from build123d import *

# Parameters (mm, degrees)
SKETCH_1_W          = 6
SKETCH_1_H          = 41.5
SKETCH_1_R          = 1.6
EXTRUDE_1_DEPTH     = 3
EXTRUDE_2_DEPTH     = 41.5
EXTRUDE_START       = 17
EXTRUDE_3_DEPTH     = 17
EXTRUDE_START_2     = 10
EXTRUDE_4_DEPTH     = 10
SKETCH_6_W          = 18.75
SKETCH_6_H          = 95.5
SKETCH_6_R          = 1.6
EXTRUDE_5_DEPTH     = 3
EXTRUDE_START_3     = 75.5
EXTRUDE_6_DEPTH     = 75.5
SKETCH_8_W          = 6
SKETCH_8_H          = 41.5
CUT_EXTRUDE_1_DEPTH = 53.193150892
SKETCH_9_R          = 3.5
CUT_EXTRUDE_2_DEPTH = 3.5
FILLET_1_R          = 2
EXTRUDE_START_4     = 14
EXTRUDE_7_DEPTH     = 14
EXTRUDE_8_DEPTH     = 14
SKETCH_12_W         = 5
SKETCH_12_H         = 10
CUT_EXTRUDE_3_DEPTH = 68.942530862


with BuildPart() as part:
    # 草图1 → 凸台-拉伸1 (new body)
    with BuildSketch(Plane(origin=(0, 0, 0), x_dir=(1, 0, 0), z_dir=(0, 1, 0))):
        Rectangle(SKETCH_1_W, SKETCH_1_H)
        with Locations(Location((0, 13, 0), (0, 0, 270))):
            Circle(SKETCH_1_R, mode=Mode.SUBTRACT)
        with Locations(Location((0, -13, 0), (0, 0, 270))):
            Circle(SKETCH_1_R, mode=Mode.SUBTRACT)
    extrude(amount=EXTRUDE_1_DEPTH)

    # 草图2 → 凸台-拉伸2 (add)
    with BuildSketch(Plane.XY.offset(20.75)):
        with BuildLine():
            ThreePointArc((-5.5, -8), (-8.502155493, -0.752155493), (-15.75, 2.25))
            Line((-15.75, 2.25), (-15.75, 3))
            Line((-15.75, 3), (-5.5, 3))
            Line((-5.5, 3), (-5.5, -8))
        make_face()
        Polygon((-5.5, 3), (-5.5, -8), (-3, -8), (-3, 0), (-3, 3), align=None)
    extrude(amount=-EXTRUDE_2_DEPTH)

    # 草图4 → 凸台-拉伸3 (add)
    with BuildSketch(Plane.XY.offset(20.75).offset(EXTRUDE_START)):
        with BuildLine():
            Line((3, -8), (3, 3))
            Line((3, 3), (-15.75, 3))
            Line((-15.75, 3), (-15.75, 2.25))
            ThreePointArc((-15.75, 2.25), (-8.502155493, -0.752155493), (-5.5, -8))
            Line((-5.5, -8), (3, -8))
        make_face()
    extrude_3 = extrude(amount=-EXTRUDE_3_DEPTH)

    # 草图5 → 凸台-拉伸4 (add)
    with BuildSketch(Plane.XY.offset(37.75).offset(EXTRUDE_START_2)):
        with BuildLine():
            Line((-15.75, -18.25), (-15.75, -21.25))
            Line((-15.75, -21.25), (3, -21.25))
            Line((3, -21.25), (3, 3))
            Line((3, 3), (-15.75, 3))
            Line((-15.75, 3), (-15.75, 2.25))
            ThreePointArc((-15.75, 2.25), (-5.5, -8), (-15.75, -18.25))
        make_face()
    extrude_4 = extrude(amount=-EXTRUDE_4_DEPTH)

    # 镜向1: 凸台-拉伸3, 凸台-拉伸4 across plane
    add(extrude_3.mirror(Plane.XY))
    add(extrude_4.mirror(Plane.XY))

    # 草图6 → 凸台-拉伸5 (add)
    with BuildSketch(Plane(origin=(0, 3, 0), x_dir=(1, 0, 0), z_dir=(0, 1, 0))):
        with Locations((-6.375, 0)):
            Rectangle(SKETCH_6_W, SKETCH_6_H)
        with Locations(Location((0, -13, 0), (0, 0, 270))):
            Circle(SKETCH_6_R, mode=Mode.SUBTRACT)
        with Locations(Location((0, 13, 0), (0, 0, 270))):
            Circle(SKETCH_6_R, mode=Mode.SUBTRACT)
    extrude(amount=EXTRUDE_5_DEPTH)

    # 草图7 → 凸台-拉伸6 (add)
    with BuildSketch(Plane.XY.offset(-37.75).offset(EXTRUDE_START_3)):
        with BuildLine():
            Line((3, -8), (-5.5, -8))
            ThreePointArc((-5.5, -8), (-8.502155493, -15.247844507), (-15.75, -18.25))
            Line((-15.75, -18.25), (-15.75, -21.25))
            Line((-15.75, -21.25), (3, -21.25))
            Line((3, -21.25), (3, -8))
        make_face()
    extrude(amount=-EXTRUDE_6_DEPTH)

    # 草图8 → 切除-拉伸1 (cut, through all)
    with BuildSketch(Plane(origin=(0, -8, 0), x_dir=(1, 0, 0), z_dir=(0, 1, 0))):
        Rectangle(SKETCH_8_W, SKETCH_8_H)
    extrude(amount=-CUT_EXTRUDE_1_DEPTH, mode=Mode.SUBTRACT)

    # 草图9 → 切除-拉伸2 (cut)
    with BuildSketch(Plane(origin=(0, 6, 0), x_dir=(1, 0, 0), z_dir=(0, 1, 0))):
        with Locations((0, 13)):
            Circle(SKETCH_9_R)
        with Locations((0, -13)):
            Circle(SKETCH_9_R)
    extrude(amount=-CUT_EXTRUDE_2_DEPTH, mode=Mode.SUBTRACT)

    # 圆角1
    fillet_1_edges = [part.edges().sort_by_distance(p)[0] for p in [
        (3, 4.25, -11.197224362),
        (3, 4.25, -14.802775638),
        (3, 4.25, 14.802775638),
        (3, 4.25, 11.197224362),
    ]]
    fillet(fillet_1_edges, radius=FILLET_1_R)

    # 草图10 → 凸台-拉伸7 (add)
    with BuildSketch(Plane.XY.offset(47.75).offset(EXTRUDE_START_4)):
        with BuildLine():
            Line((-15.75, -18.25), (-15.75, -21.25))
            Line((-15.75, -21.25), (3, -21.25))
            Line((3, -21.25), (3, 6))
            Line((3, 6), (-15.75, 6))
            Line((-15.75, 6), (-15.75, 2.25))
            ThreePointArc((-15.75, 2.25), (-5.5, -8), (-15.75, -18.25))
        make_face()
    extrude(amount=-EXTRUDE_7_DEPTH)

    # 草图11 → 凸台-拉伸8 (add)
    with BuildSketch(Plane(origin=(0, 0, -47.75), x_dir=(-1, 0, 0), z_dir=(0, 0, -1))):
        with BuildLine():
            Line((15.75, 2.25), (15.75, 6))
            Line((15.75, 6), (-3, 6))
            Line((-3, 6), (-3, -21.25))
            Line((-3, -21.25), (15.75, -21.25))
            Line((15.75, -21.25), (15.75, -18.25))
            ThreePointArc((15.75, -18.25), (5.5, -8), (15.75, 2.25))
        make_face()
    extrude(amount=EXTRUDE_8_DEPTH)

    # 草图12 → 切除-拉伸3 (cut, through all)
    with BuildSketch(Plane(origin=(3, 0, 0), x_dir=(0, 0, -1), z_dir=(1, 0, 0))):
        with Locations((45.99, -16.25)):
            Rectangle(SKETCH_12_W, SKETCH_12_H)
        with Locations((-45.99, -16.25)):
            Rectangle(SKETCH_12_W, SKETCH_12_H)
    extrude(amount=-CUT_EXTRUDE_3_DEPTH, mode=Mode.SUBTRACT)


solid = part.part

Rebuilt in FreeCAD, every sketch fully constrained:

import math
import FreeCAD as App
import Part
import Sketcher
from FreeCAD import Vector
Q = App.Units.Quantity


def edges_at(feature, points):
    """Names of the edges that pass closest to the given points."""
    edges = feature.Shape.Edges
    near = lambda p: min(range(len(edges)), key=lambda i: edges[i].distToShape(Part.Vertex(*p))[0])
    return sorted({f"Edge{near(p) + 1}" for p in points})


def add_polygon(sketch, points):
    """Adds a closed chain of lines whose ends are joined by coincident constraints."""
    first, n = sketch.GeometryCount, len(points)
    for a, b in zip(points, points[1:] + points[:1]):
        sketch.addGeometry(Part.LineSegment(App.Vector(*a, 0), App.Vector(*b, 0)), False)
    for i in range(n):
        sketch.addConstraint(Sketcher.Constraint("Coincident", first + i, 2, first + (i + 1) % n, 1))

doc = App.newDocument("Part")
body = doc.addObject("PartDesign::Body", "Body")

# Sketch on XZ plane
sketch1 = body.newObject("Sketcher::SketchObject", "Sketch")
sketch1.AttachmentSupport = (doc.getObject("XZ_Plane"), [""])
sketch1.MapMode = "FlatFace"
add_polygon(sketch1, [(-3, -20.75), (-3, 20.75), (3, 20.75), (3, -20.75)])  # lines 0-3
sketch1.addGeometry(Part.Circle(Vector(0, 13, 0), Vector(0, 0, 1), 1.6), False)  # 4
sketch1.addGeometry(Part.Circle(Vector(0, -13, 0), Vector(0, 0, 1), 1.6), False)  # 5
sketch1.addConstraint(Sketcher.Constraint("Vertical", 0))
sketch1.addConstraint(Sketcher.Constraint("Horizontal", 1))
sketch1.addConstraint(Sketcher.Constraint("Vertical", 2))
sketch1.addConstraint(Sketcher.Constraint("Horizontal", 3))
sketch1.addConstraint(Sketcher.Constraint("Equal", 4, 5))
sketch1.addConstraint(Sketcher.Constraint("Symmetric", 4, 3, 5, 3, -1, 1))
sketch1.addConstraint(Sketcher.Constraint("Symmetric", 0, 2, 2, 2, -1, 1))
sketch1.addConstraint(Sketcher.Constraint("PointOnObject", 4, 3, -2))
sketch1.addConstraint(Sketcher.Constraint("Diameter", 4, Q("3.2 mm")))
sketch1.addConstraint(Sketcher.Constraint("DistanceX", 1, 1, 1, 2, Q("6 mm")))
sketch1.addConstraint(Sketcher.Constraint("DistanceY", 0, 1, 0, 2, Q("41.5 mm")))
sketch1.addConstraint(Sketcher.Constraint("DistanceY", -1, 1, 4, 3, Q("13 mm")))
pad1 = body.newObject("PartDesign::Pad", "Pad")
pad1.Profile = sketch1
pad1.Length = 3
pad1.Reversed = True

# Sketch on XY plane
sketch2 = body.newObject("Sketcher::SketchObject", "Sketch001")
sketch2.AttachmentSupport = (doc.getObject("XY_Plane"), [""])
sketch2.MapMode = "FlatFace"
sketch2.AttachmentOffset = App.Placement(Vector(0, 0, 20.75), App.Rotation())
sketch2.addGeometry(Part.ArcOfCircle(Part.Circle(Vector(-15.75, -8, 0), Vector(0, 0, 1), 10.25), math.radians(0), math.radians(90)), False)
sketch2.addGeometry(Part.LineSegment(Vector(-5.5, -8, 0), Vector(-3, -8, 0)), False)
sketch2.addGeometry(Part.LineSegment(Vector(-3, -8, 0), Vector(-3, 3, 0)), False)
sketch2.addGeometry(Part.LineSegment(Vector(-3, 3, 0), Vector(-15.75, 3, 0)), False)
sketch2.addGeometry(Part.LineSegment(Vector(-15.75, 3, 0), Vector(-15.75, 2.25, 0)), False)
sketch2.addConstraint(Sketcher.Constraint("Coincident", 0, 1, 1, 1))
sketch2.addConstraint(Sketcher.Constraint("Coincident", 1, 2, 2, 1))
sketch2.addConstraint(Sketcher.Constraint("Coincident", 2, 2, 3, 1))
sketch2.addConstraint(Sketcher.Constraint("Coincident", 3, 2, 4, 1))
sketch2.addConstraint(Sketcher.Constraint("Coincident", 4, 2, 0, 2))
sketch2.addConstraint(Sketcher.Constraint("Horizontal", 1))
sketch2.addConstraint(Sketcher.Constraint("Vertical", 2))
sketch2.addConstraint(Sketcher.Constraint("Horizontal", 3))
sketch2.addConstraint(Sketcher.Constraint("Vertical", 4))
sketch2.addConstraint(Sketcher.Constraint("Vertical", 0, 3, 3, 2))
sketch2.addConstraint(Sketcher.Constraint("DistanceY", 2, 1, 2, 2, Q("11 mm")))
sketch2.addConstraint(Sketcher.Constraint("Radius", 0, Q("10.25 mm")))
sketch2.addConstraint(Sketcher.Constraint("DistanceX", 1, 1, 1, 2, Q("2.5 mm")))
sketch2.addConstraint(Sketcher.Constraint("DistanceY", 0, 3, -1, 1, Q("8 mm")))
sketch2.addConstraint(Sketcher.Constraint("DistanceY", 0, 1, -1, 1, Q("8 mm")))
sketch2.addConstraint(Sketcher.Constraint("DistanceX", 1, 2, -1, 1, Q("3 mm")))
pad2 = body.newObject("PartDesign::Pad", "Pad001")
pad2.Profile = sketch2
pad2.Length = 41.5
pad2.Reversed = True

# Sketch on XY plane
sketch3 = body.newObject("Sketcher::SketchObject", "Sketch002")
sketch3.AttachmentSupport = (doc.getObject("XY_Plane"), [""])
sketch3.MapMode = "FlatFace"
sketch3.AttachmentOffset = App.Placement(Vector(0, 0, 37.75), App.Rotation())
sketch3.addGeometry(Part.LineSegment(Vector(3, -8, 0), Vector(3, 3, 0)), False)
sketch3.addGeometry(Part.LineSegment(Vector(3, 3, 0), Vector(-15.75, 3, 0)), False)
sketch3.addGeometry(Part.LineSegment(Vector(-15.75, 3, 0), Vector(-15.75, 2.25, 0)), False)
sketch3.addGeometry(Part.ArcOfCircle(Part.Circle(Vector(-15.75, -8, 0), Vector(0, 0, 1), 10.25), math.radians(0), math.radians(90)), False)
sketch3.addGeometry(Part.LineSegment(Vector(-5.5, -8, 0), Vector(3, -8, 0)), False)
sketch3.addConstraint(Sketcher.Constraint("Coincident", 0, 2, 1, 1))
sketch3.addConstraint(Sketcher.Constraint("Coincident", 1, 2, 2, 1))
sketch3.addConstraint(Sketcher.Constraint("Coincident", 2, 2, 3, 2))
sketch3.addConstraint(Sketcher.Constraint("Coincident", 3, 1, 4, 1))
sketch3.addConstraint(Sketcher.Constraint("Coincident", 4, 2, 0, 1))
sketch3.addConstraint(Sketcher.Constraint("Vertical", 0))
sketch3.addConstraint(Sketcher.Constraint("Horizontal", 1))
sketch3.addConstraint(Sketcher.Constraint("Vertical", 2))
sketch3.addConstraint(Sketcher.Constraint("Horizontal", 4))
sketch3.addConstraint(Sketcher.Constraint("Vertical", 3, 3, 1, 2))
sketch3.addConstraint(Sketcher.Constraint("DistanceY", 0, 1, 0, 2, Q("11 mm")))
sketch3.addConstraint(Sketcher.Constraint("Radius", 3, Q("10.25 mm")))
sketch3.addConstraint(Sketcher.Constraint("DistanceX", 4, 1, 4, 2, Q("8.5 mm")))
sketch3.addConstraint(Sketcher.Constraint("DistanceY", 3, 3, -1, 1, Q("8 mm")))
sketch3.addConstraint(Sketcher.Constraint("DistanceX", -1, 1, 0, 2, Q("3 mm")))
sketch3.addConstraint(Sketcher.Constraint("DistanceY", -1, 1, 0, 2, Q("3 mm")))
pad3 = body.newObject("PartDesign::Pad", "Pad002")
pad3.Profile = sketch3
pad3.Length = 17
pad3.Reversed = True

# Sketch on XY plane
sketch4 = body.newObject("Sketcher::SketchObject", "Sketch003")
sketch4.AttachmentSupport = (doc.getObject("XY_Plane"), [""])
sketch4.MapMode = "FlatFace"
sketch4.AttachmentOffset = App.Placement(Vector(0, 0, 47.75), App.Rotation())
sketch4.addGeometry(Part.LineSegment(Vector(-15.75, -18.25, 0), Vector(-15.75, -21.25, 0)), False)
sketch4.addGeometry(Part.LineSegment(Vector(-15.75, -21.25, 0), Vector(3, -21.25, 0)), False)
sketch4.addGeometry(Part.LineSegment(Vector(3, -21.25, 0), Vector(3, 3, 0)), False)
sketch4.addGeometry(Part.LineSegment(Vector(3, 3, 0), Vector(-15.75, 3, 0)), False)
sketch4.addGeometry(Part.LineSegment(Vector(-15.75, 3, 0), Vector(-15.75, 2.25, 0)), False)
sketch4.addGeometry(Part.ArcOfCircle(Part.Circle(Vector(-15.75, -8, 0), Vector(0, 0, 1), 10.25), math.radians(-90), math.radians(90)), False)
sketch4.addConstraint(Sketcher.Constraint("Coincident", 0, 2, 1, 1))
sketch4.addConstraint(Sketcher.Constraint("Coincident", 1, 2, 2, 1))
sketch4.addConstraint(Sketcher.Constraint("Coincident", 2, 2, 3, 1))
sketch4.addConstraint(Sketcher.Constraint("Coincident", 3, 2, 4, 1))
sketch4.addConstraint(Sketcher.Constraint("Coincident", 4, 2, 5, 2))
sketch4.addConstraint(Sketcher.Constraint("Coincident", 5, 1, 0, 1))
sketch4.addConstraint(Sketcher.Constraint("Vertical", 0))
sketch4.addConstraint(Sketcher.Constraint("Horizontal", 1))
sketch4.addConstraint(Sketcher.Constraint("Vertical", 2))
sketch4.addConstraint(Sketcher.Constraint("Horizontal", 3))
sketch4.addConstraint(Sketcher.Constraint("Vertical", 4))
sketch4.addConstraint(Sketcher.Constraint("Vertical", 5, 3, 0, 2))
sketch4.addConstraint(Sketcher.Constraint("Vertical", 0, 2, 3, 2))
sketch4.addConstraint(Sketcher.Constraint("DistanceY", 0, 2, 0, 1, Q("3 mm")))
sketch4.addConstraint(Sketcher.Constraint("Radius", 5, Q("10.25 mm")))
sketch4.addConstraint(Sketcher.Constraint("DistanceY", 5, 3, -1, 1, Q("8 mm")))
sketch4.addConstraint(Sketcher.Constraint("DistanceX", -1, 1, 1, 2, Q("3 mm")))
sketch4.addConstraint(Sketcher.Constraint("DistanceY", -1, 1, 2, 2, Q("3 mm")))
sketch4.addConstraint(Sketcher.Constraint("DistanceX", 1, 1, 1, 2, Q("18.75 mm")))
pad4 = body.newObject("PartDesign::Pad", "Pad003")
pad4.Profile = sketch4
pad4.Length = 10
pad4.Reversed = True
doc.recompute()

mirrored = body.newObject("PartDesign::Mirrored", "Mirrored")
mirrored.Originals = [pad3, pad4]
mirrored.MirrorPlane = (doc.getObject("XY_Plane"), [""])
body.Tip = mirrored

# Sketch on XZ plane
sketch5 = body.newObject("Sketcher::SketchObject", "Sketch004")
sketch5.AttachmentSupport = (doc.getObject("XZ_Plane"), [""])
sketch5.MapMode = "FlatFace"
sketch5.AttachmentOffset = App.Placement(Vector(0, 0, -3), App.Rotation())
add_polygon(sketch5, [(-15.75, -47.75), (-15.75, 47.75), (3, 47.75), (3, -47.75)])  # lines 0-3
sketch5.addGeometry(Part.Circle(Vector(0, 13, 0), Vector(0, 0, 1), 1.6), False)  # 4
sketch5.addGeometry(Part.Circle(Vector(0, -13, 0), Vector(0, 0, 1), 1.6), False)  # 5
sketch5.addConstraint(Sketcher.Constraint("Vertical", 0))
sketch5.addConstraint(Sketcher.Constraint("Horizontal", 1))
sketch5.addConstraint(Sketcher.Constraint("Vertical", 2))
sketch5.addConstraint(Sketcher.Constraint("Horizontal", 3))
sketch5.addConstraint(Sketcher.Constraint("Equal", 4, 5))
sketch5.addConstraint(Sketcher.Constraint("Symmetric", 4, 3, 5, 3, -1, 1))
sketch5.addConstraint(Sketcher.Constraint("PointOnObject", 4, 3, -2))
sketch5.addConstraint(Sketcher.Constraint("Diameter", 4, Q("3.2 mm")))
sketch5.addConstraint(Sketcher.Constraint("DistanceY", 0, 1, 0, 2, Q("95.5 mm")))
sketch5.addConstraint(Sketcher.Constraint("DistanceY", -1, 1, 4, 3, Q("13 mm")))
sketch5.addConstraint(Sketcher.Constraint("DistanceX", -1, 1, 1, 2, Q("3 mm")))
sketch5.addConstraint(Sketcher.Constraint("DistanceX", 1, 1, 1, 2, Q("18.75 mm")))
sketch5.addConstraint(Sketcher.Constraint("DistanceY", -1, 1, 0, 2, Q("47.75 mm")))
pad5 = body.newObject("PartDesign::Pad", "Pad004")
pad5.Profile = sketch5
pad5.Length = 3
pad5.Reversed = True

# Sketch on XY plane
sketch6 = body.newObject("Sketcher::SketchObject", "Sketch005")
sketch6.AttachmentSupport = (doc.getObject("XY_Plane"), [""])
sketch6.MapMode = "FlatFace"
sketch6.AttachmentOffset = App.Placement(Vector(0, 0, 37.75), App.Rotation())
sketch6.addGeometry(Part.LineSegment(Vector(3, -8, 0), Vector(-5.5, -8, 0)), False)
sketch6.addGeometry(Part.ArcOfCircle(Part.Circle(Vector(-15.75, -8, 0), Vector(0, 0, 1), 10.25), math.radians(-90), math.radians(0)), False)
sketch6.addGeometry(Part.LineSegment(Vector(-15.75, -18.25, 0), Vector(-15.75, -21.25, 0)), False)
sketch6.addGeometry(Part.LineSegment(Vector(-15.75, -21.25, 0), Vector(3, -21.25, 0)), False)
sketch6.addGeometry(Part.LineSegment(Vector(3, -21.25, 0), Vector(3, -8, 0)), False)
sketch6.addConstraint(Sketcher.Constraint("Coincident", 0, 2, 1, 2))
sketch6.addConstraint(Sketcher.Constraint("Coincident", 1, 1, 2, 1))
sketch6.addConstraint(Sketcher.Constraint("Coincident", 2, 2, 3, 1))
sketch6.addConstraint(Sketcher.Constraint("Coincident", 3, 2, 4, 1))
sketch6.addConstraint(Sketcher.Constraint("Coincident", 4, 2, 0, 1))
sketch6.addConstraint(Sketcher.Constraint("Horizontal", 0))
sketch6.addConstraint(Sketcher.Constraint("Vertical", 2))
sketch6.addConstraint(Sketcher.Constraint("Horizontal", 3))
sketch6.addConstraint(Sketcher.Constraint("Vertical", 4))
sketch6.addConstraint(Sketcher.Constraint("Horizontal", 1, 3, 0, 2))
sketch6.addConstraint(Sketcher.Constraint("DistanceY", 2, 2, 2, 1, Q("3 mm")))
sketch6.addConstraint(Sketcher.Constraint("Radius", 1, Q("10.25 mm")))
sketch6.addConstraint(Sketcher.Constraint("DistanceX", 0, 2, 0, 1, Q("8.5 mm")))
sketch6.addConstraint(Sketcher.Constraint("DistanceY", 1, 3, -1, 1, Q("8 mm")))
sketch6.addConstraint(Sketcher.Constraint("DistanceX", -1, 1, 3, 2, Q("3 mm")))
sketch6.addConstraint(Sketcher.Constraint("DistanceX", 3, 1, 3, 2, Q("18.75 mm")))
pad6 = body.newObject("PartDesign::Pad", "Pad005")
pad6.Profile = sketch6
pad6.Length = 75.5
pad6.Reversed = True

# Sketch on XZ plane
sketch7 = body.newObject("Sketcher::SketchObject", "Sketch006")
sketch7.AttachmentSupport = (doc.getObject("XZ_Plane"), [""])
sketch7.MapMode = "FlatFace"
sketch7.AttachmentOffset = App.Placement(Vector(0, 0, 8), App.Rotation())
add_polygon(sketch7, [(-3, -20.75), (-3, 20.75), (3, 20.75), (3, -20.75)])  # lines 0-3
sketch7.addConstraint(Sketcher.Constraint("Vertical", 0))
sketch7.addConstraint(Sketcher.Constraint("Horizontal", 1))
sketch7.addConstraint(Sketcher.Constraint("Vertical", 2))
sketch7.addConstraint(Sketcher.Constraint("Horizontal", 3))
sketch7.addConstraint(Sketcher.Constraint("Symmetric", 0, 2, 2, 2, -1, 1))
sketch7.addConstraint(Sketcher.Constraint("DistanceX", 1, 1, 1, 2, Q("6 mm")))
sketch7.addConstraint(Sketcher.Constraint("DistanceY", 0, 1, 0, 2, Q("41.5 mm")))
pocket1 = body.newObject("PartDesign::Pocket", "Pocket")
pocket1.Profile = sketch7
pocket1.Type = "ThroughAll"
pocket1.Reversed = True

# Sketch on XZ plane
sketch8 = body.newObject("Sketcher::SketchObject", "Sketch007")
sketch8.AttachmentSupport = (doc.getObject("XZ_Plane"), [""])
sketch8.MapMode = "FlatFace"
sketch8.AttachmentOffset = App.Placement(Vector(0, 0, -6), App.Rotation())
sketch8.addGeometry(Part.Circle(Vector(0, -13, 0), Vector(0, 0, 1), 3.5), False)
sketch8.addGeometry(Part.Circle(Vector(0, 13, 0), Vector(0, 0, 1), 3.5), False)
sketch8.addConstraint(Sketcher.Constraint("Equal", 0, 1))
sketch8.addConstraint(Sketcher.Constraint("Symmetric", 0, 3, 1, 3, -1, 1))
sketch8.addConstraint(Sketcher.Constraint("PointOnObject", 0, 3, -2))
sketch8.addConstraint(Sketcher.Constraint("Diameter", 0, Q("7 mm")))
sketch8.addConstraint(Sketcher.Constraint("DistanceY", 0, 3, -1, 1, Q("13 mm")))
pocket2 = body.newObject("PartDesign::Pocket", "Pocket001")
pocket2.Profile = sketch8
pocket2.Length = 3.5
pocket2.Reversed = True
doc.recompute()

fillet = body.newObject("PartDesign::Fillet", "Fillet")
fillet.Base = (pocket2, edges_at(pocket2, [
    (3, 4.25, -11.197),
    (3, 4.25, -14.803),
    (3, 4.25, 14.803),
    (3, 4.25, 11.197),
]))
fillet.Radius = 2

# Sketch on XY plane
sketch9 = body.newObject("Sketcher::SketchObject", "Sketch008")
sketch9.AttachmentSupport = (doc.getObject("XY_Plane"), [""])
sketch9.MapMode = "FlatFace"
sketch9.AttachmentOffset = App.Placement(Vector(0, 0, 61.75), App.Rotation())
sketch9.addGeometry(Part.LineSegment(Vector(-15.75, -18.25, 0), Vector(-15.75, -21.25, 0)), False)
sketch9.addGeometry(Part.LineSegment(Vector(-15.75, -21.25, 0), Vector(3, -21.25, 0)), False)
sketch9.addGeometry(Part.LineSegment(Vector(3, -21.25, 0), Vector(3, 6, 0)), False)
sketch9.addGeometry(Part.LineSegment(Vector(3, 6, 0), Vector(-15.75, 6, 0)), False)
sketch9.addGeometry(Part.LineSegment(Vector(-15.75, 6, 0), Vector(-15.75, 2.25, 0)), False)
sketch9.addGeometry(Part.ArcOfCircle(Part.Circle(Vector(-15.75, -8, 0), Vector(0, 0, 1), 10.25), math.radians(-90), math.radians(90)), False)
sketch9.addConstraint(Sketcher.Constraint("Coincident", 0, 2, 1, 1))
sketch9.addConstraint(Sketcher.Constraint("Coincident", 1, 2, 2, 1))
sketch9.addConstraint(Sketcher.Constraint("Coincident", 2, 2, 3, 1))
sketch9.addConstraint(Sketcher.Constraint("Coincident", 3, 2, 4, 1))
sketch9.addConstraint(Sketcher.Constraint("Coincident", 4, 2, 5, 2))
sketch9.addConstraint(Sketcher.Constraint("Coincident", 5, 1, 0, 1))
sketch9.addConstraint(Sketcher.Constraint("Vertical", 0))
sketch9.addConstraint(Sketcher.Constraint("Horizontal", 1))
sketch9.addConstraint(Sketcher.Constraint("Vertical", 2))
sketch9.addConstraint(Sketcher.Constraint("Horizontal", 3))
sketch9.addConstraint(Sketcher.Constraint("Vertical", 4))
sketch9.addConstraint(Sketcher.Constraint("Vertical", 5, 3, 0, 2))
sketch9.addConstraint(Sketcher.Constraint("Vertical", 0, 2, 3, 2))
sketch9.addConstraint(Sketcher.Constraint("DistanceY", 0, 2, 0, 1, Q("3 mm")))
sketch9.addConstraint(Sketcher.Constraint("Radius", 5, Q("10.25 mm")))
sketch9.addConstraint(Sketcher.Constraint("DistanceY", 5, 3, -1, 1, Q("8 mm")))
sketch9.addConstraint(Sketcher.Constraint("DistanceX", -1, 1, 1, 2, Q("3 mm")))
sketch9.addConstraint(Sketcher.Constraint("DistanceY", -1, 1, 2, 2, Q("6 mm")))
sketch9.addConstraint(Sketcher.Constraint("DistanceX", 1, 1, 1, 2, Q("18.75 mm")))
pad7 = body.newObject("PartDesign::Pad", "Pad006")
pad7.Profile = sketch9
pad7.Length = 14
pad7.Reversed = True

# Sketch on XY plane
sketch10 = body.newObject("Sketcher::SketchObject", "Sketch009")
sketch10.AttachmentSupport = (doc.getObject("XY_Plane"), [""])
sketch10.MapMode = "FlatFace"
sketch10.AttachmentOffset = App.Placement(Vector(0, 0, -47.75), App.Rotation())
sketch10.addGeometry(Part.LineSegment(Vector(-15.75, 2.25, 0), Vector(-15.75, 6, 0)), False)
sketch10.addGeometry(Part.LineSegment(Vector(-15.75, 6, 0), Vector(3, 6, 0)), False)
sketch10.addGeometry(Part.LineSegment(Vector(3, 6, 0), Vector(3, -21.25, 0)), False)
sketch10.addGeometry(Part.LineSegment(Vector(3, -21.25, 0), Vector(-15.75, -21.25, 0)), False)
sketch10.addGeometry(Part.LineSegment(Vector(-15.75, -21.25, 0), Vector(-15.75, -18.25, 0)), False)
sketch10.addGeometry(Part.ArcOfCircle(Part.Circle(Vector(-15.75, -8, 0), Vector(0, 0, 1), 10.25), math.radians(-90), math.radians(90)), False)
sketch10.addConstraint(Sketcher.Constraint("Coincident", 0, 2, 1, 1))
sketch10.addConstraint(Sketcher.Constraint("Coincident", 1, 2, 2, 1))
sketch10.addConstraint(Sketcher.Constraint("Coincident", 2, 2, 3, 1))
sketch10.addConstraint(Sketcher.Constraint("Coincident", 3, 2, 4, 1))
sketch10.addConstraint(Sketcher.Constraint("Coincident", 4, 2, 5, 1))
sketch10.addConstraint(Sketcher.Constraint("Coincident", 5, 2, 0, 1))
sketch10.addConstraint(Sketcher.Constraint("Vertical", 0))
sketch10.addConstraint(Sketcher.Constraint("Horizontal", 1))
sketch10.addConstraint(Sketcher.Constraint("Vertical", 2))
sketch10.addConstraint(Sketcher.Constraint("Horizontal", 3))
sketch10.addConstraint(Sketcher.Constraint("Vertical", 4))
sketch10.addConstraint(Sketcher.Constraint("Vertical", 5, 3, 0, 2))
sketch10.addConstraint(Sketcher.Constraint("Vertical", 0, 2, 3, 2))
sketch10.addConstraint(Sketcher.Constraint("DistanceY", 4, 1, 4, 2, Q("3 mm")))
sketch10.addConstraint(Sketcher.Constraint("Radius", 5, Q("10.25 mm")))
sketch10.addConstraint(Sketcher.Constraint("DistanceY", 5, 3, -1, 1, Q("8 mm")))
sketch10.addConstraint(Sketcher.Constraint("DistanceY", -1, 1, 0, 2, Q("6 mm")))
sketch10.addConstraint(Sketcher.Constraint("DistanceX", -1, 1, 1, 2, Q("3 mm")))
sketch10.addConstraint(Sketcher.Constraint("DistanceX", 1, 1, 1, 2, Q("18.75 mm")))
pad8 = body.newObject("PartDesign::Pad", "Pad007")
pad8.Profile = sketch10
pad8.Length = 14
pad8.Reversed = True

# Sketch on YZ plane
sketch11 = body.newObject("Sketcher::SketchObject", "Sketch010")
sketch11.AttachmentSupport = (doc.getObject("YZ_Plane"), [""])
sketch11.MapMode = "FlatFace"
sketch11.AttachmentOffset = App.Placement(Vector(0, 0, 3), App.Rotation())
add_polygon(sketch11, [(-11.25, -43.49), (-21.25, -43.49), (-21.25, -48.49), (-11.25, -48.49)])  # lines 0-3
add_polygon(sketch11, [(-11.25, 48.49), (-21.25, 48.49), (-21.25, 43.49), (-11.25, 43.49)])  # lines 4-7
sketch11.addConstraint(Sketcher.Constraint("Horizontal", 0))
sketch11.addConstraint(Sketcher.Constraint("Vertical", 1))
sketch11.addConstraint(Sketcher.Constraint("Horizontal", 2))
sketch11.addConstraint(Sketcher.Constraint("Vertical", 3))
sketch11.addConstraint(Sketcher.Constraint("Horizontal", 4))
sketch11.addConstraint(Sketcher.Constraint("Vertical", 5))
sketch11.addConstraint(Sketcher.Constraint("Horizontal", 6))
sketch11.addConstraint(Sketcher.Constraint("Vertical", 7))
sketch11.addConstraint(Sketcher.Constraint("Symmetric", 1, 2, 4, 2, -1))
sketch11.addConstraint(Sketcher.Constraint("Symmetric", 3, 2, 6, 2, -1))
sketch11.addConstraint(Sketcher.Constraint("DistanceX", 0, 2, 0, 1, Q("10 mm")))
sketch11.addConstraint(Sketcher.Constraint("DistanceY", 1, 2, 1, 1, Q("5 mm")))
sketch11.addConstraint(Sketcher.Constraint("DistanceX", 0, 2, -1, 1, Q("21.25 mm")))
sketch11.addConstraint(Sketcher.Constraint("DistanceY", 0, 2, -1, 1, Q("43.49 mm")))
pocket3 = body.newObject("PartDesign::Pocket", "Pocket002")
pocket3.Profile = sketch11
pocket3.Type = "ThroughAll"

doc.recompute()
